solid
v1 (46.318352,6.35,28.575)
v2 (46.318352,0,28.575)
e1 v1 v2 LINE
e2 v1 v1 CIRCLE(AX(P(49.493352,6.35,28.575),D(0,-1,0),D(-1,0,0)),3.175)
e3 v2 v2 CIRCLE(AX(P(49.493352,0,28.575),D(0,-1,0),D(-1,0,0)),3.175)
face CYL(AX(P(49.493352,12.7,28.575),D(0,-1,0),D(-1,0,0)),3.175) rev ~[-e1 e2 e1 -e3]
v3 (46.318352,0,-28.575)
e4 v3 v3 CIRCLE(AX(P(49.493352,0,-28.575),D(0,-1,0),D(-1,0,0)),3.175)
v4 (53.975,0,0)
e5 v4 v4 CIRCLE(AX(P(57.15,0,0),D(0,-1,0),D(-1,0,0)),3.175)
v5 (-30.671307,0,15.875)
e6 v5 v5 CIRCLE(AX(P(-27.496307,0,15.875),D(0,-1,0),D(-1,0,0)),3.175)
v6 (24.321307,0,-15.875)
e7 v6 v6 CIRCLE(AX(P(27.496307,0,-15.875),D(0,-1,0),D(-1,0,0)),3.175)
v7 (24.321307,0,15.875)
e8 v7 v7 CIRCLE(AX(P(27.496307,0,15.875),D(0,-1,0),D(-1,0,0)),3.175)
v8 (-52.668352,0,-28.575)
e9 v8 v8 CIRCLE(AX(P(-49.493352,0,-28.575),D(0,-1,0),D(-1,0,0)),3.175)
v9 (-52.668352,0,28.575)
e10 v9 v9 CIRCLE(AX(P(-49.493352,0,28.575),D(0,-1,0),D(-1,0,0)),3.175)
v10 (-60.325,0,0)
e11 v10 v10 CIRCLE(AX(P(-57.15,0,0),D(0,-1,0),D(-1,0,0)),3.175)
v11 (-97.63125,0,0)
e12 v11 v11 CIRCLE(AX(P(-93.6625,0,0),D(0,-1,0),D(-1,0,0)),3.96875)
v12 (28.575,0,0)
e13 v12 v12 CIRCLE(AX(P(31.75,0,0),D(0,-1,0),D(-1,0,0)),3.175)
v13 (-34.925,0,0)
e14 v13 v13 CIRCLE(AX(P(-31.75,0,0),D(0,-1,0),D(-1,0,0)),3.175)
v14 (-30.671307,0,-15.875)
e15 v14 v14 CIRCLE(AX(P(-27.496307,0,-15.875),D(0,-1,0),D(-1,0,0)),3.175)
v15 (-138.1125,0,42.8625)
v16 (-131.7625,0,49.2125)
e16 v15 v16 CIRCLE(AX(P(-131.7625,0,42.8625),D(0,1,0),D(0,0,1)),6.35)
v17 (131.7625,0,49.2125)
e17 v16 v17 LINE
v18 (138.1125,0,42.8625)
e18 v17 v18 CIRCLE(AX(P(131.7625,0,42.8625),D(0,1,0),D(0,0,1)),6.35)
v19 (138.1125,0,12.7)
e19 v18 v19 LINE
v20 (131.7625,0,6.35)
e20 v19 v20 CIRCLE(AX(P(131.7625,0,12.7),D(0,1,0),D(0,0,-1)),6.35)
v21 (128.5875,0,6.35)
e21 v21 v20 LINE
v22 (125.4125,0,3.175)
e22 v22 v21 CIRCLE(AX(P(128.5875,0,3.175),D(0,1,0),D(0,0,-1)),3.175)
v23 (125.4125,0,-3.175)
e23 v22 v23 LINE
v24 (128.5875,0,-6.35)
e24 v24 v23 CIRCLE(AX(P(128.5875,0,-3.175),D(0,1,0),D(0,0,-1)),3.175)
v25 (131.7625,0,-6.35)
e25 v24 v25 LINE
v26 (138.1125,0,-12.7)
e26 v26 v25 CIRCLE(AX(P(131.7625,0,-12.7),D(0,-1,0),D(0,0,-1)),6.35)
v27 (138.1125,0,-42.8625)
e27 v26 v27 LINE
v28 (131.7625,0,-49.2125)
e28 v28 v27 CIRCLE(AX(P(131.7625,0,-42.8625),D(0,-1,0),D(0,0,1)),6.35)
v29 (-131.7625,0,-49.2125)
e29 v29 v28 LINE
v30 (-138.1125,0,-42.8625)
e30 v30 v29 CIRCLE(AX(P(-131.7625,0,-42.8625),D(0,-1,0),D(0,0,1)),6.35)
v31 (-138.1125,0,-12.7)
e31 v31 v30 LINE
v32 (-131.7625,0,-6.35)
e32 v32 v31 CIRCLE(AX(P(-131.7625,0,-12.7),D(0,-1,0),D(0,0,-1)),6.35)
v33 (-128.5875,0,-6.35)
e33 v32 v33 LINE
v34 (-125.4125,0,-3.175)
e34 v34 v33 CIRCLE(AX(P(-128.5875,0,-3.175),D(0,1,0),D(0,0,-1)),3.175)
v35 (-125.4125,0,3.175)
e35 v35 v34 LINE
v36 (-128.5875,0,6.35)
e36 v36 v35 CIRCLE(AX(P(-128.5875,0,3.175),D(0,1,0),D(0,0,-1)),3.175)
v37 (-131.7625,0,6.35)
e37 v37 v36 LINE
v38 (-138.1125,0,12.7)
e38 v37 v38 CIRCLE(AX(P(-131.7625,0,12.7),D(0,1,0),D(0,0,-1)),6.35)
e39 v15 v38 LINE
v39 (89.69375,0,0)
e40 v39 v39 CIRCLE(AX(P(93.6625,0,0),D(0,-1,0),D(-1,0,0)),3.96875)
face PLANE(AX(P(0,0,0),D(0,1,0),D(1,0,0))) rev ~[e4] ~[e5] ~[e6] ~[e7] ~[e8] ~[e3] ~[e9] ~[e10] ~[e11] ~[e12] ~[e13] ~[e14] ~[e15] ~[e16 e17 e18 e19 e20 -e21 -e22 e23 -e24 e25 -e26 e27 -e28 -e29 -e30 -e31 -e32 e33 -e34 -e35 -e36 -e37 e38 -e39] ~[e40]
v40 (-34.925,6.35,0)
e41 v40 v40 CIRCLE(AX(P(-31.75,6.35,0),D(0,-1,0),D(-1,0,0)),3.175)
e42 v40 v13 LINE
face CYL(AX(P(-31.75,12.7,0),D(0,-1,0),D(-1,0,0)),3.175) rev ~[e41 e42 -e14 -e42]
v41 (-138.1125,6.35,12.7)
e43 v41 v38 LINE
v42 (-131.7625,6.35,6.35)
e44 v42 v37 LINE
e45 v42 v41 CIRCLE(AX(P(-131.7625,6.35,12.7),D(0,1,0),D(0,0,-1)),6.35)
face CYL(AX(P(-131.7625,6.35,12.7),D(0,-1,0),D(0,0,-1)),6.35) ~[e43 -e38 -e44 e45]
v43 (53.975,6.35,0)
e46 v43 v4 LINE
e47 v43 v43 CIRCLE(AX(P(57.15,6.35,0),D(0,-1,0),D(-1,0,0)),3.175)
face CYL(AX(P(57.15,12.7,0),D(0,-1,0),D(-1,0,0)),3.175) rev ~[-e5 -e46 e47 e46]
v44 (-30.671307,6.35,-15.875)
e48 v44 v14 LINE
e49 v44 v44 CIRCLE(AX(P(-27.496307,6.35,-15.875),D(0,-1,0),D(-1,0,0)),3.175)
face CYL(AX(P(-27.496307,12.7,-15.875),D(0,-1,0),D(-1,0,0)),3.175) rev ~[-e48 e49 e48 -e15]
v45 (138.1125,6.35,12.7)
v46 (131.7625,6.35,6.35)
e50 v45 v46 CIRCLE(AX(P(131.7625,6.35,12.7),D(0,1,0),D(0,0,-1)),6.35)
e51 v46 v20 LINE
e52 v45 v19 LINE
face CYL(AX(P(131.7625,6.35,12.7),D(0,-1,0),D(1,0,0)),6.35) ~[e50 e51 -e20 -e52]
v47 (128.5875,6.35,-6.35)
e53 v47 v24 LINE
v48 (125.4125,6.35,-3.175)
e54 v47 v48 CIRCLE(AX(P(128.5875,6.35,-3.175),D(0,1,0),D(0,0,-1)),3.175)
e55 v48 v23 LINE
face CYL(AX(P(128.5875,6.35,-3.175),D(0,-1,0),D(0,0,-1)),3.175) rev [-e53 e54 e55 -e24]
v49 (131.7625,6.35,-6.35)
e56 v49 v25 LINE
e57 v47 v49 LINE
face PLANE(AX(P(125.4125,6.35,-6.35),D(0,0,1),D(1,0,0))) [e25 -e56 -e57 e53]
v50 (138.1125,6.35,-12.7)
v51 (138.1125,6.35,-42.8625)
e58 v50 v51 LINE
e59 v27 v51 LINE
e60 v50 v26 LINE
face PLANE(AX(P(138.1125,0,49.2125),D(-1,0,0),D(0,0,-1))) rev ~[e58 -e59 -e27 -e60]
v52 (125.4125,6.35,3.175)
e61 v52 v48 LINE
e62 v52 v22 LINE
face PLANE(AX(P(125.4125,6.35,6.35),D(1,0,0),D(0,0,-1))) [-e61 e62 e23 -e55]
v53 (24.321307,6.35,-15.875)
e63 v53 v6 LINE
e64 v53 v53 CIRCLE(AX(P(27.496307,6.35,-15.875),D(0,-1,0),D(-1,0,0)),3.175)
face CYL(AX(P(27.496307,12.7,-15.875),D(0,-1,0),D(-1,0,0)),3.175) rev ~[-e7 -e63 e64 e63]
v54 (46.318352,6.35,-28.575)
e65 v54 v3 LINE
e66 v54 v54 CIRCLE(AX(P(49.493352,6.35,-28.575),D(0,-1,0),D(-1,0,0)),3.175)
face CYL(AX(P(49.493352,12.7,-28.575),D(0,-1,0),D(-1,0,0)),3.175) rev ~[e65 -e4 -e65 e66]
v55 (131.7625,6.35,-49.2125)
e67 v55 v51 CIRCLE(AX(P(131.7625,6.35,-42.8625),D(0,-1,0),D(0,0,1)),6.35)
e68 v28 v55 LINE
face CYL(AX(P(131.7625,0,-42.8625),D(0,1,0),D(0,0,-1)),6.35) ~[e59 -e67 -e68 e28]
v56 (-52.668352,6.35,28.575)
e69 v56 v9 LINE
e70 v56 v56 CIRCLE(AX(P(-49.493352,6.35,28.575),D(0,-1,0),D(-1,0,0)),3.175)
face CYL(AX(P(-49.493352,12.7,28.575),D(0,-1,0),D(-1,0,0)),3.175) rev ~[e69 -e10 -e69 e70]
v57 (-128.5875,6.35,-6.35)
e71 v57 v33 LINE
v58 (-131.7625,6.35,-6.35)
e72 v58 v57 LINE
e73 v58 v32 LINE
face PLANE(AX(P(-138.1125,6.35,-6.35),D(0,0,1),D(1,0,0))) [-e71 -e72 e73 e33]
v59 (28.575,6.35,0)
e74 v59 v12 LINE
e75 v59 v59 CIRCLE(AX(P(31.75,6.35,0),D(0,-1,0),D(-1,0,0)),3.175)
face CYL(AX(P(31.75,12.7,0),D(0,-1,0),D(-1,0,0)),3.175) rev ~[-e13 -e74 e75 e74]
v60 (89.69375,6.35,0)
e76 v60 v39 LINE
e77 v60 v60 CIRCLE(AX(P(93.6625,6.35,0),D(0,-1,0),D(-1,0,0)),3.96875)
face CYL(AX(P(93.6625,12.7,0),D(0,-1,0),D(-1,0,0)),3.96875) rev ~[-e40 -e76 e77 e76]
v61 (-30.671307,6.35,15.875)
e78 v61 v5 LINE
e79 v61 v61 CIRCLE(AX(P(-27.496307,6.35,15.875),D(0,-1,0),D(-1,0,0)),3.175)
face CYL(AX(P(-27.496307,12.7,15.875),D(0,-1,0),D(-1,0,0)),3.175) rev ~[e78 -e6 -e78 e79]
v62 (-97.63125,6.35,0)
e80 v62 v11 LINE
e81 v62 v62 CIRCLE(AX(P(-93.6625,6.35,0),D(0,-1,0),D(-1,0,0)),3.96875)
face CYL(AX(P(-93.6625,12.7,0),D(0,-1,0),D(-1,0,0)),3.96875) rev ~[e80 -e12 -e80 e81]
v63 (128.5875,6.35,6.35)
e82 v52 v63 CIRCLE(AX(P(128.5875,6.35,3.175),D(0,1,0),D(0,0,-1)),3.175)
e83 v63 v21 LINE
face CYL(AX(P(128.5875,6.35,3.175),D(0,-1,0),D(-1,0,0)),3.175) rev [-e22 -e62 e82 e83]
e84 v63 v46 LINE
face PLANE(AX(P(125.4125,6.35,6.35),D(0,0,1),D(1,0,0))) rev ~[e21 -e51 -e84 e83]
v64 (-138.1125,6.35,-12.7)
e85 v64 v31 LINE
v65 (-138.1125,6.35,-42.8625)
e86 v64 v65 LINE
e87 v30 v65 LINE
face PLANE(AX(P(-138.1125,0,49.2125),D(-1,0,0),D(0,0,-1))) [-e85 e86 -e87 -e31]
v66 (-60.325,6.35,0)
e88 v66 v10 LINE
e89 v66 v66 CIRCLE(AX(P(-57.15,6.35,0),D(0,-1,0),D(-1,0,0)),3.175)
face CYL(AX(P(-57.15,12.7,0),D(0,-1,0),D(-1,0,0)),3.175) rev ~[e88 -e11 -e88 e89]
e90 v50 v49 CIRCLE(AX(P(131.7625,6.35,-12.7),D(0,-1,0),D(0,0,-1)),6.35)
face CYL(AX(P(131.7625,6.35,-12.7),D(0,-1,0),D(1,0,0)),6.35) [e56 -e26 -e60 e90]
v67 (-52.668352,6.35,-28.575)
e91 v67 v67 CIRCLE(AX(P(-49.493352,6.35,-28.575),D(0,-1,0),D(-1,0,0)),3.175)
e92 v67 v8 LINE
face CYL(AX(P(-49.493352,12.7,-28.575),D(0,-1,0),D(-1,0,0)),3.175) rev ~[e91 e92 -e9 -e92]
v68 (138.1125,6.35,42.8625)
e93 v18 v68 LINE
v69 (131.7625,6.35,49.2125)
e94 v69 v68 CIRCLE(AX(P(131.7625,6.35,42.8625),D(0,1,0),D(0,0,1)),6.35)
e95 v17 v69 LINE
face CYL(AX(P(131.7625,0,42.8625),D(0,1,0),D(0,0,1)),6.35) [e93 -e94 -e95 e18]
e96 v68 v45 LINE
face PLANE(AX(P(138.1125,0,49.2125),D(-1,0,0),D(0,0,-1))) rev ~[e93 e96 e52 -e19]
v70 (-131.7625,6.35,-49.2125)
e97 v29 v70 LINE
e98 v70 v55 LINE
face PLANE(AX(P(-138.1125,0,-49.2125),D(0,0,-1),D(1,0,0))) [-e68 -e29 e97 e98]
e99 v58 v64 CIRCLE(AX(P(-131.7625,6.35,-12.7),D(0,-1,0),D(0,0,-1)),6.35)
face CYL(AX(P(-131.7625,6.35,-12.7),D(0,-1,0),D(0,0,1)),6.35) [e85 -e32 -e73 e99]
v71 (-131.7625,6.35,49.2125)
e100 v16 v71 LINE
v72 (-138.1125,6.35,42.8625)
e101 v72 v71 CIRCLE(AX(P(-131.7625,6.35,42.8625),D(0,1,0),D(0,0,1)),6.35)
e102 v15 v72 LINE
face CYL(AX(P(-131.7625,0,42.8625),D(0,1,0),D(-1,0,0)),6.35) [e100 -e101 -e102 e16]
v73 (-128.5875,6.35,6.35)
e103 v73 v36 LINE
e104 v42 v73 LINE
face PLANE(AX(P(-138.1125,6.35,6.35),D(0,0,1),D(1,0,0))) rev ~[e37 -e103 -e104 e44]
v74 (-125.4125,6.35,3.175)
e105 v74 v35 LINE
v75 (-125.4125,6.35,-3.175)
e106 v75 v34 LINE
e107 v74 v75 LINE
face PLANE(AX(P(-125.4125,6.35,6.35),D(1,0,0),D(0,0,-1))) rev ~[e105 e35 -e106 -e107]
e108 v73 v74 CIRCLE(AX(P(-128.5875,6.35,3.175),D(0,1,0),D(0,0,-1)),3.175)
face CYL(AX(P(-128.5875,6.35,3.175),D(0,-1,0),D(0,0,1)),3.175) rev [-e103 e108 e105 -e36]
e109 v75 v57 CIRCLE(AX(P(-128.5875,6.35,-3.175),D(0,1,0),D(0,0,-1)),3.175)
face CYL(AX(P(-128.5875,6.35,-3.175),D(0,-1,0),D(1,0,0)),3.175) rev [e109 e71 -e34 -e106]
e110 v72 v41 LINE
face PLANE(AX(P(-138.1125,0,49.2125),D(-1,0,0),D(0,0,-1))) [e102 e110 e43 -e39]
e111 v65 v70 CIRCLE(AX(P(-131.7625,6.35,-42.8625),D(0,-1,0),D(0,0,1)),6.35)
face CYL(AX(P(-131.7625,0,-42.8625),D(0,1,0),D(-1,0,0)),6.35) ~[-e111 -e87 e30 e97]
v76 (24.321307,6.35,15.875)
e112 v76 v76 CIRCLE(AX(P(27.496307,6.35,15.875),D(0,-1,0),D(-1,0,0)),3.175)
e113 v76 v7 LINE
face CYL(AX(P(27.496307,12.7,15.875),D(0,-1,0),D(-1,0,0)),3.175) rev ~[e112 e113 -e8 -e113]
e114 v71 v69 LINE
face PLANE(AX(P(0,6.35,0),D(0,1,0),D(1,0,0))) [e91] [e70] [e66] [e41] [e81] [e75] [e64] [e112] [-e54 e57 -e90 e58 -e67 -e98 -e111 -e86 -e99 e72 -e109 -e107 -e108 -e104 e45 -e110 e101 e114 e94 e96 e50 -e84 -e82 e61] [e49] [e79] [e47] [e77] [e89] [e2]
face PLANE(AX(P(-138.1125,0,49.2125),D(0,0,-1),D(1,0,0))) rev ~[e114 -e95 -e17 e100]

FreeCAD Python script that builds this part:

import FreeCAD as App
import Part
import Sketcher
Q = App.Units.Quantity


def edges_at(feature, points):
    """Names of the edges that pass closest to the given points."""
    edges = feature.Shape.Edges
    near = lambda p: min(range(len(edges)), key=lambda i: edges[i].distToShape(Part.Vertex(*p))[0])
    return sorted({f"Edge{near(p) + 1}" for p in points})

doc = App.newDocument("Part")
body = doc.addObject("PartDesign::Body", "Body")

sketch1 = body.newObject("Sketcher::SketchObject", "Sketch")
sketch1.AttachmentSupport = (doc.getObject("XZ_Plane"), [""])
sketch1.MapMode = "FlatFace"
sketch1.addGeometry([
    Part.LineSegment(App.Vector(-138, -49, 0), App.Vector(-138, 49, 0)),
    Part.LineSegment(App.Vector(-138, 49, 0), App.Vector(138, 49, 0)),
    Part.LineSegment(App.Vector(138, 49, 0), App.Vector(138, -49, 0)),
    Part.LineSegment(App.Vector(138, -49, 0), App.Vector(-138, -49, 0)),
], False)
sketch1.addConstraint([
    Sketcher.Constraint("Coincident", 0, 2, 1, 1),
    Sketcher.Constraint("Coincident", 1, 2, 2, 1),
    Sketcher.Constraint("Coincident", 2, 2, 3, 1),
    Sketcher.Constraint("Coincident", 3, 2, 0, 1),
    Sketcher.Constraint("Vertical", 0),
    Sketcher.Constraint("Horizontal", 1),
    Sketcher.Constraint("Vertical", 2),
    Sketcher.Constraint("Horizontal", 3),
    Sketcher.Constraint("Symmetric", 0, 2, 2, 2, -1, 1),
    Sketcher.Constraint("DistanceX", 1, 1, 1, 2, Q("10.875 in")),
    Sketcher.Constraint("DistanceY", 0, 1, 0, 2, Q("3.875 in")),
])
pad1 = body.newObject("PartDesign::Pad", "Pad")
pad1.Profile = sketch1
pad1.Length = Q("0.25 in")
pad1.Reversed = True

sketch2 = body.newObject("Sketcher::SketchObject", "Sketch001")
sketch2.AttachmentSupport = (doc.getObject("XZ_Plane"), [""])
sketch2.MapMode = "FlatFace"
sketch2.AttachmentOffset = App.Placement(App.Vector(0, 0, -0.25 * 25.4), App.Rotation())
sketch2.addGeometry([
    Part.Circle(App.Vector(-93.7, 0, 0), App.Vector(0, 0, 1), 4),
    Part.Circle(App.Vector(93.7, 0, 0), App.Vector(0, 0, 1), 4),
], False)
sketch2.addConstraint([
    Sketcher.Constraint("Equal", 0, 1),
    Sketcher.Constraint("Symmetric", 0, 3, 1, 3, -1, 1),
    Sketcher.Constraint("PointOnObject", 0, 3, -1),
    Sketcher.Constraint("Diameter", 0, Q("0.3125 in")),
    Sketcher.Constraint("DistanceX", 0, 3, -1, 1, Q("3.6875 in")),
])
doc.recompute()
hole = body.newObject("PartDesign::Hole", "Hole")
hole.Profile = sketch2
hole.ThreadType = "None"
hole.Diameter = Q("0.3125 in")
hole.DepthType = "Dimension"
hole.Depth = Q("0.25 in")
hole.DrillPoint = "Flat"
hole.Reversed = True

sketch3 = body.newObject("Sketcher::SketchObject", "Sketch002")
sketch3.AttachmentSupport = (doc.getObject("XZ_Plane"), [""])
sketch3.MapMode = "FlatFace"
sketch3.AttachmentOffset = App.Placement(App.Vector(0, 0, -0.25 * 25.4), App.Rotation())
sketch3.addGeometry([
    Part.LineSegment(App.Vector(-138, -6, 0), App.Vector(-138, 6, 0)),
    Part.LineSegment(App.Vector(-138, 6, 0), App.Vector(-125, 6, 0)),
    Part.LineSegment(App.Vector(-125, 6, 0), App.Vector(-125, -6, 0)),
    Part.LineSegment(App.Vector(-125, -6, 0), App.Vector(-138, -6, 0)),
    Part.LineSegment(App.Vector(125, -6, 0), App.Vector(125, 6, 0)),
    Part.LineSegment(App.Vector(125, 6, 0), App.Vector(138, 6, 0)),
    Part.LineSegment(App.Vector(138, 6, 0), App.Vector(138, -6, 0)),
    Part.LineSegment(App.Vector(138, -6, 0), App.Vector(125, -6, 0)),
], False)
sketch3.addConstraint([
    Sketcher.Constraint("Coincident", 0, 2, 1, 1),
    Sketcher.Constraint("Coincident", 1, 2, 2, 1),
    Sketcher.Constraint("Coincident", 2, 2, 3, 1),
    Sketcher.Constraint("Coincident", 3, 2, 0, 1),
    Sketcher.Constraint("Coincident", 4, 2, 5, 1),
    Sketcher.Constraint("Coincident", 5, 2, 6, 1),
    Sketcher.Constraint("Coincident", 6, 2, 7, 1),
    Sketcher.Constraint("Coincident", 7, 2, 4, 1),
    Sketcher.Constraint("Vertical", 0),
    Sketcher.Constraint("Horizontal", 1),
    Sketcher.Constraint("Vertical", 2),
    Sketcher.Constraint("Horizontal", 3),
    Sketcher.Constraint("Vertical", 4),
    Sketcher.Constraint("Horizontal", 5),
    Sketcher.Constraint("Vertical", 6),
    Sketcher.Constraint("Horizontal", 7),
    Sketcher.Constraint("Symmetric", 2, 2, 4, 2, -1, 1),
    Sketcher.Constraint("Symmetric", 0, 2, 6, 2, -1, 1),
    Sketcher.Constraint("Horizontal", 1, 2, 4, 2),
    Sketcher.Constraint("Equal", 7, 0),
    Sketcher.Constraint("DistanceX", 1, 1, 1, 2, Q("0.5 in")),
    Sketcher.Constraint("DistanceX", 0, 2, -1, 1, Q("5.4375 in")),
])
pocket1 = body.newObject("PartDesign::Pocket", "Pocket")
pocket1.Profile = sketch3
pocket1.Type = "ThroughAll"
pocket1.Reversed = True
doc.recompute()

fillet = body.newObject("PartDesign::Fillet", "Fillet")
fillet.Base = (pocket1, edges_at(pocket1, [
    (-125.412, 3.175, -6.35),
    (-125.412, 3.175, 6.35),
    (125.412, 3.175, 6.35),
    (125.412, 3.175, -6.35),
]))
fillet.Radius = Q("0.125 in")
doc.recompute()

fillet2 = body.newObject("PartDesign::Fillet", "Fillet001")
fillet2.Base = (fillet, edges_at(fillet, [
    (-138.113, 3.175, 6.35),
    (-138.113, 3.175, -6.35),
    (138.113, 3.175, -6.35),
    (138.113, 3.175, 6.35),
    (-138.113, 3.175, -49.212),
    (138.113, 3.175, -49.212),
    (138.113, 3.175, 49.212),
    (-138.113, 3.175, 49.212),
]))
fillet2.Radius = Q("0.25 in")

sketch4 = body.newObject("Sketcher::SketchObject", "Sketch003")
sketch4.AttachmentSupport = (doc.getObject("XZ_Plane"), [""])
sketch4.MapMode = "FlatFace"
sketch4.AttachmentOffset = App.Placement(App.Vector(0, 0, -0.25 * 25.4), App.Rotation())
sketch4.addGeometry([
    Part.Circle(App.Vector(-57.1, 0, 0), App.Vector(0, 0, 1), 3.2),
    Part.Circle(App.Vector(-31.8, 0, 0), App.Vector(0, 0, 1), 3.2),
    Part.Circle(App.Vector(31.8, 0, 0), App.Vector(0, 0, 1), 3.2),
    Part.Circle(App.Vector(57.1, 0, 0), App.Vector(0, 0, 1), 3.2),
    Part.Circle(App.Vector(-49.5, -28.6, 0), App.Vector(0, 0, 1), 3.2),
    Part.Circle(App.Vector(-27.5, -15.9, 0), App.Vector(0, 0, 1), 3.2),
    Part.Circle(App.Vector(-27.5, 15.9, 0), App.Vector(0, 0, 1), 3.2),
    Part.Circle(App.Vector(-49.5, 28.6, 0), App.Vector(0, 0, 1), 3.2),
    Part.Circle(App.Vector(27.5, -15.9, 0), App.Vector(0, 0, 1), 3.2),
    Part.Circle(App.Vector(49.5, -28.6, 0), App.Vector(0, 0, 1), 3.2),
    Part.Circle(App.Vector(49.5, 28.6, 0), App.Vector(0, 0, 1), 3.2),
    Part.Circle(App.Vector(27.5, 15.9, 0), App.Vector(0, 0, 1), 3.2),
], False)
sketch4.addConstraint([
    Sketcher.Constraint("Equal", 0, 1),
    Sketcher.Constraint("Equal", 1, 2),
    Sketcher.Constraint("Equal", 2, 3),
    Sketcher.Constraint("Equal", 3, 4),
    Sketcher.Constraint("Equal", 4, 5),
    Sketcher.Constraint("Equal", 5, 6),
    Sketcher.Constraint("Equal", 6, 7),
    Sketcher.Constraint("Equal", 7, 8),
    Sketcher.Constraint("Equal", 8, 9),
    Sketcher.Constraint("Equal", 9, 10),
    Sketcher.Constraint("Equal", 10, 11),
    Sketcher.Constraint("Symmetric", 1, 3, 2, 3, -1, 1),
    Sketcher.Constraint("Symmetric", 0, 3, 3, 3, -1, 1),
    Sketcher.Constraint("Symmetric", 6, 3, 8, 3, -1, 1),
    Sketcher.Constraint("Symmetric", 7, 3, 9, 3, -1, 1),
    Sketcher.Constraint("Symmetric", 4, 3, 10, 3, -1, 1),
    Sketcher.Constraint("Symmetric", 5, 3, 11, 3, -1, 1),
    Sketcher.Constraint("Symmetric", 5, 3, 8, 3, -2),
    Sketcher.Constraint("Symmetric", 4, 3, 9, 3, -2),
    Sketcher.Constraint("PointOnObject", 0, 3, -1),
    Sketcher.Constraint("PointOnObject", 1, 3, -1),
    Sketcher.Constraint("Diameter", 0, Q("0.25 in")),
    Sketcher.Constraint("DistanceX", 0, 3, 1, 3, Q("1 in")),
    Sketcher.Constraint("DistanceX", 1, 3, 2, 3, Q("2.5 in")),
    Sketcher.Constraint("DistanceY", 4, 3, 5, 3, Q("0.5 in")),
    Sketcher.Constraint("DistanceY", 5, 3, 6, 3, Q("1.25 in")),
    Sketcher.Constraint("DistanceX", 4, 3, -1, 1, Q("49.493352 mm")),
    Sketcher.Constraint("DistanceX", 5, 3, 9, 3, Q("76.989658 mm")),
])
doc.recompute()
hole2 = body.newObject("PartDesign::Hole", "Hole001")
hole2.Profile = sketch4
hole2.ThreadType = "None"
hole2.Diameter = Q("0.25 in")
hole2.DepthType = "Dimension"
hole2.Depth = Q("0.25 in")
hole2.DrillPoint = "Flat"
hole2.Reversed = True

doc.recompute()
